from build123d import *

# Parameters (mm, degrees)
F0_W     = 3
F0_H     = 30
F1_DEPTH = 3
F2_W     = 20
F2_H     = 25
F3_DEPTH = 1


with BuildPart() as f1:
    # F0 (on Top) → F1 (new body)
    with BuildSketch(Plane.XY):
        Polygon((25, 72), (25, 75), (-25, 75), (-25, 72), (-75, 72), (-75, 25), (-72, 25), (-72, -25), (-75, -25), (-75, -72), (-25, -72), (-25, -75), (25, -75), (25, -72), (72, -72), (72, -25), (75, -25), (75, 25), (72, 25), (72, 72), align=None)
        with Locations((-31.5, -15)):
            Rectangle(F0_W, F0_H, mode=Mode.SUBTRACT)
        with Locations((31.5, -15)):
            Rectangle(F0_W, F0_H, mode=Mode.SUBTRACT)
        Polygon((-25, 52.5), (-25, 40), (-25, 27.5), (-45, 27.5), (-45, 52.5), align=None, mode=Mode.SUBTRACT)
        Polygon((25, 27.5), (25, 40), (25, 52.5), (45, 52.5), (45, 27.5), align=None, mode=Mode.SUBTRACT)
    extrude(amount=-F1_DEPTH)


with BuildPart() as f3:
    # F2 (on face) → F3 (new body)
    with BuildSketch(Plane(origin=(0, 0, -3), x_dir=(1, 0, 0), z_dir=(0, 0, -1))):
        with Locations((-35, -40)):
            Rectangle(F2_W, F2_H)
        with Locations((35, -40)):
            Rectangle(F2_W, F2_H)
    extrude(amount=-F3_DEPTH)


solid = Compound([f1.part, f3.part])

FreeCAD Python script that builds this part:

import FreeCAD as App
import Part
import Sketcher
from FreeCAD import Vector
Q = App.Units.Quantity


def add_polygon(sketch, points):
    """Adds a closed chain of lines whose ends are joined by coincident constraints."""
    first, n = sketch.GeometryCount, len(points)
    for a, b in zip(points, points[1:] + points[:1]):
        sketch.addGeometry(Part.LineSegment(App.Vector(*a, 0), App.Vector(*b, 0)), False)
    for i in range(n):
        sketch.addConstraint(Sketcher.Constraint("Coincident", first + i, 2, first + (i + 1) % n, 1))

doc = App.newDocument("Part")
body = doc.addObject("PartDesign::Body", "Body")

sketch1 = doc.addObject("Sketcher::SketchObject", "Sketch")
body.addObject(sketch1)
sketch1.AttachmentSupport = (doc.XY_Plane, [""])
sketch1.MapMode = "FlatFace"
add_polygon(sketch1, [(25, 72), (25, 75), (-25, 75), (-25, 72), (-75, 72), (-75, 25), (-72, 25), (-72, -25), (-75, -25), (-75, -72), (-25, -72), (-25, -75), (25, -75), (25, -72), (72, -72), (72, -25), (75, -25), (75, 25), (72, 25), (72, 72)])
add_polygon(sketch1, [(-30, -30), (-33, -30), (-33, 0), (-30, 0)])
add_polygon(sketch1, [(33, -30), (30, -30), (30, 0), (33, 0)])
add_polygon(sketch1, [(-45, 52.5), (-25, 52.5), (-25, 27.5), (-45, 27.5)])
add_polygon(sketch1, [(45, 27.5), (25, 27.5), (25, 52.5), (45, 52.5)])
sketch1.addConstraint([
    Sketcher.Constraint("Vertical", 0),
    Sketcher.Constraint("Horizontal", 1),
    Sketcher.Constraint("Vertical", 2),
    Sketcher.Constraint("Horizontal", 3),
    Sketcher.Constraint("Vertical", 4),
    Sketcher.Constraint("Horizontal", 5),
    Sketcher.Constraint("Vertical", 6),
    Sketcher.Constraint("Horizontal", 7),
    Sketcher.Constraint("Vertical", 8),
    Sketcher.Constraint("Horizontal", 9),
    Sketcher.Constraint("Vertical", 10),
    Sketcher.Constraint("Horizontal", 11),
    Sketcher.Constraint("Vertical", 12),
    Sketcher.Constraint("Horizontal", 13),
    Sketcher.Constraint("Vertical", 14),
    Sketcher.Constraint("Horizontal", 15),
    Sketcher.Constraint("Vertical", 16),
    Sketcher.Constraint("Horizontal", 17),
    Sketcher.Constraint("Vertical", 18),
    Sketcher.Constraint("Horizontal", 19),
    Sketcher.Constraint("Horizontal", 20),
    Sketcher.Constraint("Vertical", 21),
    Sketcher.Constraint("Horizontal", 22),
    Sketcher.Constraint("Vertical", 23),
    Sketcher.Constraint("Horizontal", 24),
    Sketcher.Constraint("Vertical", 25),
    Sketcher.Constraint("Horizontal", 26),
    Sketcher.Constraint("Vertical", 27),
    Sketcher.Constraint("Horizontal", 28),
    Sketcher.Constraint("Vertical", 29),
    Sketcher.Constraint("Horizontal", 30),
    Sketcher.Constraint("Vertical", 31),
    Sketcher.Constraint("Horizontal", 32),
    Sketcher.Constraint("Vertical", 33),
    Sketcher.Constraint("Horizontal", 34),
    Sketcher.Constraint("Vertical", 35),
    Sketcher.Constraint("Symmetric", 0, 2, 10, 2, -1, 1),
    Sketcher.Constraint("Symmetric", 2, 2, 12, 2, -1, 1),
    Sketcher.Constraint("Symmetric", 5, 2, 14, 2, -1, 1),
    Sketcher.Constraint("Symmetric", 7, 2, 16, 2, -1, 1),
    Sketcher.Constraint("Symmetric", 22, 2, 25, 2, -1, 1),
    Sketcher.Constraint("Symmetric", 9, 2, 12, 2, -2),
    Sketcher.Constraint("Symmetric", 4, 2, 16, 2, -2),
    Sketcher.Constraint("Symmetric", 21, 2, 26, 2, -2),
    Sketcher.Constraint("Symmetric", 29, 2, 32, 2, -2),
    Sketcher.Constraint("Symmetric", 31, 2, 34, 2, -2),
    Sketcher.Constraint("Symmetric", 13, 2, 18, 2, -1),
    Sketcher.Constraint("Horizontal", 23, 2, 24, 2),
    Sketcher.Constraint("Vertical", 10, 2, 28, 2),
    Sketcher.Constraint("Equal", 1, 3),
    Sketcher.Constraint("Equal", 17, 20),
    Sketcher.Constraint("Equal", 26, 0),
    Sketcher.Constraint("Equal", 19, 4),
    Sketcher.Constraint("Equal", 11, 6),
    Sketcher.Constraint("DistanceX", 1, 2, 1, 1, Q("50 mm")),
    Sketcher.Constraint("DistanceX", 5, 1, 5, 2, Q("3 mm")),
    Sketcher.Constraint("DistanceX", 28, 1, 28, 2, Q("20 mm")),
    Sketcher.Constraint("DistanceY", 21, 1, 21, 2, Q("30 mm")),
    Sketcher.Constraint("DistanceY", 29, 2, 29, 1, Q("25 mm")),
    Sketcher.Constraint("DistanceX", 20, 2, -1, 1, Q("33 mm")),
    Sketcher.Constraint("DistanceY", -1, 1, 28, 2, Q("52.5 mm")),
])
pad1 = doc.addObject("PartDesign::Pad", "Pad")
body.addObject(pad1)
pad1.Profile = sketch1
pad1.Length = 3
pad1.Reversed = True
body2 = doc.addObject("PartDesign::Body", "Body001")
body2.AllowCompound = True

sketch2 = doc.addObject("Sketcher::SketchObject", "Sketch001")
body2.addObject(sketch2)
sketch2.AttachmentSupport = (doc.getObject("XY_Plane001"), [""])
sketch2.MapMode = "FlatFace"
sketch2.AttachmentOffset = App.Placement(Vector(0, 0, -3), App.Rotation())
add_polygon(sketch2, [(-45, 28), (-45, 52), (-25, 52), (-25, 28)])
add_polygon(sketch2, [(25, 28), (25, 52), (45, 52), (45, 28)])
sketch2.addConstraint([
    Sketcher.Constraint("Vertical", 0),
    Sketcher.Constraint("Horizontal", 1),
    Sketcher.Constraint("Vertical", 2),
    Sketcher.Constraint("Horizontal", 3),
    Sketcher.Constraint("Vertical", 4),
    Sketcher.Constraint("Horizontal", 5),
    Sketcher.Constraint("Vertical", 6),
    Sketcher.Constraint("Horizontal", 7),
    Sketcher.Constraint("Symmetric", 1, 2, 4, 2, -2),
    Sketcher.Constraint("Symmetric", 3, 2, 6, 2, -2),
    Sketcher.Constraint("DistanceX", 1, 1, 1, 2, Q("20 mm")),
    Sketcher.Constraint("DistanceY", 0, 1, 0, 2, Q("25 mm")),
    Sketcher.Constraint("DistanceX", 0, 2, -1, 1, Q("45 mm")),
    Sketcher.Constraint("DistanceY", -1, 1, 0, 2, Q("52.5 mm")),
])
pad2 = doc.addObject("PartDesign::Pad", "Pad001")
body2.addObject(pad2)
pad2.Profile = sketch2
pad2.Length = 1

doc.recompute()
